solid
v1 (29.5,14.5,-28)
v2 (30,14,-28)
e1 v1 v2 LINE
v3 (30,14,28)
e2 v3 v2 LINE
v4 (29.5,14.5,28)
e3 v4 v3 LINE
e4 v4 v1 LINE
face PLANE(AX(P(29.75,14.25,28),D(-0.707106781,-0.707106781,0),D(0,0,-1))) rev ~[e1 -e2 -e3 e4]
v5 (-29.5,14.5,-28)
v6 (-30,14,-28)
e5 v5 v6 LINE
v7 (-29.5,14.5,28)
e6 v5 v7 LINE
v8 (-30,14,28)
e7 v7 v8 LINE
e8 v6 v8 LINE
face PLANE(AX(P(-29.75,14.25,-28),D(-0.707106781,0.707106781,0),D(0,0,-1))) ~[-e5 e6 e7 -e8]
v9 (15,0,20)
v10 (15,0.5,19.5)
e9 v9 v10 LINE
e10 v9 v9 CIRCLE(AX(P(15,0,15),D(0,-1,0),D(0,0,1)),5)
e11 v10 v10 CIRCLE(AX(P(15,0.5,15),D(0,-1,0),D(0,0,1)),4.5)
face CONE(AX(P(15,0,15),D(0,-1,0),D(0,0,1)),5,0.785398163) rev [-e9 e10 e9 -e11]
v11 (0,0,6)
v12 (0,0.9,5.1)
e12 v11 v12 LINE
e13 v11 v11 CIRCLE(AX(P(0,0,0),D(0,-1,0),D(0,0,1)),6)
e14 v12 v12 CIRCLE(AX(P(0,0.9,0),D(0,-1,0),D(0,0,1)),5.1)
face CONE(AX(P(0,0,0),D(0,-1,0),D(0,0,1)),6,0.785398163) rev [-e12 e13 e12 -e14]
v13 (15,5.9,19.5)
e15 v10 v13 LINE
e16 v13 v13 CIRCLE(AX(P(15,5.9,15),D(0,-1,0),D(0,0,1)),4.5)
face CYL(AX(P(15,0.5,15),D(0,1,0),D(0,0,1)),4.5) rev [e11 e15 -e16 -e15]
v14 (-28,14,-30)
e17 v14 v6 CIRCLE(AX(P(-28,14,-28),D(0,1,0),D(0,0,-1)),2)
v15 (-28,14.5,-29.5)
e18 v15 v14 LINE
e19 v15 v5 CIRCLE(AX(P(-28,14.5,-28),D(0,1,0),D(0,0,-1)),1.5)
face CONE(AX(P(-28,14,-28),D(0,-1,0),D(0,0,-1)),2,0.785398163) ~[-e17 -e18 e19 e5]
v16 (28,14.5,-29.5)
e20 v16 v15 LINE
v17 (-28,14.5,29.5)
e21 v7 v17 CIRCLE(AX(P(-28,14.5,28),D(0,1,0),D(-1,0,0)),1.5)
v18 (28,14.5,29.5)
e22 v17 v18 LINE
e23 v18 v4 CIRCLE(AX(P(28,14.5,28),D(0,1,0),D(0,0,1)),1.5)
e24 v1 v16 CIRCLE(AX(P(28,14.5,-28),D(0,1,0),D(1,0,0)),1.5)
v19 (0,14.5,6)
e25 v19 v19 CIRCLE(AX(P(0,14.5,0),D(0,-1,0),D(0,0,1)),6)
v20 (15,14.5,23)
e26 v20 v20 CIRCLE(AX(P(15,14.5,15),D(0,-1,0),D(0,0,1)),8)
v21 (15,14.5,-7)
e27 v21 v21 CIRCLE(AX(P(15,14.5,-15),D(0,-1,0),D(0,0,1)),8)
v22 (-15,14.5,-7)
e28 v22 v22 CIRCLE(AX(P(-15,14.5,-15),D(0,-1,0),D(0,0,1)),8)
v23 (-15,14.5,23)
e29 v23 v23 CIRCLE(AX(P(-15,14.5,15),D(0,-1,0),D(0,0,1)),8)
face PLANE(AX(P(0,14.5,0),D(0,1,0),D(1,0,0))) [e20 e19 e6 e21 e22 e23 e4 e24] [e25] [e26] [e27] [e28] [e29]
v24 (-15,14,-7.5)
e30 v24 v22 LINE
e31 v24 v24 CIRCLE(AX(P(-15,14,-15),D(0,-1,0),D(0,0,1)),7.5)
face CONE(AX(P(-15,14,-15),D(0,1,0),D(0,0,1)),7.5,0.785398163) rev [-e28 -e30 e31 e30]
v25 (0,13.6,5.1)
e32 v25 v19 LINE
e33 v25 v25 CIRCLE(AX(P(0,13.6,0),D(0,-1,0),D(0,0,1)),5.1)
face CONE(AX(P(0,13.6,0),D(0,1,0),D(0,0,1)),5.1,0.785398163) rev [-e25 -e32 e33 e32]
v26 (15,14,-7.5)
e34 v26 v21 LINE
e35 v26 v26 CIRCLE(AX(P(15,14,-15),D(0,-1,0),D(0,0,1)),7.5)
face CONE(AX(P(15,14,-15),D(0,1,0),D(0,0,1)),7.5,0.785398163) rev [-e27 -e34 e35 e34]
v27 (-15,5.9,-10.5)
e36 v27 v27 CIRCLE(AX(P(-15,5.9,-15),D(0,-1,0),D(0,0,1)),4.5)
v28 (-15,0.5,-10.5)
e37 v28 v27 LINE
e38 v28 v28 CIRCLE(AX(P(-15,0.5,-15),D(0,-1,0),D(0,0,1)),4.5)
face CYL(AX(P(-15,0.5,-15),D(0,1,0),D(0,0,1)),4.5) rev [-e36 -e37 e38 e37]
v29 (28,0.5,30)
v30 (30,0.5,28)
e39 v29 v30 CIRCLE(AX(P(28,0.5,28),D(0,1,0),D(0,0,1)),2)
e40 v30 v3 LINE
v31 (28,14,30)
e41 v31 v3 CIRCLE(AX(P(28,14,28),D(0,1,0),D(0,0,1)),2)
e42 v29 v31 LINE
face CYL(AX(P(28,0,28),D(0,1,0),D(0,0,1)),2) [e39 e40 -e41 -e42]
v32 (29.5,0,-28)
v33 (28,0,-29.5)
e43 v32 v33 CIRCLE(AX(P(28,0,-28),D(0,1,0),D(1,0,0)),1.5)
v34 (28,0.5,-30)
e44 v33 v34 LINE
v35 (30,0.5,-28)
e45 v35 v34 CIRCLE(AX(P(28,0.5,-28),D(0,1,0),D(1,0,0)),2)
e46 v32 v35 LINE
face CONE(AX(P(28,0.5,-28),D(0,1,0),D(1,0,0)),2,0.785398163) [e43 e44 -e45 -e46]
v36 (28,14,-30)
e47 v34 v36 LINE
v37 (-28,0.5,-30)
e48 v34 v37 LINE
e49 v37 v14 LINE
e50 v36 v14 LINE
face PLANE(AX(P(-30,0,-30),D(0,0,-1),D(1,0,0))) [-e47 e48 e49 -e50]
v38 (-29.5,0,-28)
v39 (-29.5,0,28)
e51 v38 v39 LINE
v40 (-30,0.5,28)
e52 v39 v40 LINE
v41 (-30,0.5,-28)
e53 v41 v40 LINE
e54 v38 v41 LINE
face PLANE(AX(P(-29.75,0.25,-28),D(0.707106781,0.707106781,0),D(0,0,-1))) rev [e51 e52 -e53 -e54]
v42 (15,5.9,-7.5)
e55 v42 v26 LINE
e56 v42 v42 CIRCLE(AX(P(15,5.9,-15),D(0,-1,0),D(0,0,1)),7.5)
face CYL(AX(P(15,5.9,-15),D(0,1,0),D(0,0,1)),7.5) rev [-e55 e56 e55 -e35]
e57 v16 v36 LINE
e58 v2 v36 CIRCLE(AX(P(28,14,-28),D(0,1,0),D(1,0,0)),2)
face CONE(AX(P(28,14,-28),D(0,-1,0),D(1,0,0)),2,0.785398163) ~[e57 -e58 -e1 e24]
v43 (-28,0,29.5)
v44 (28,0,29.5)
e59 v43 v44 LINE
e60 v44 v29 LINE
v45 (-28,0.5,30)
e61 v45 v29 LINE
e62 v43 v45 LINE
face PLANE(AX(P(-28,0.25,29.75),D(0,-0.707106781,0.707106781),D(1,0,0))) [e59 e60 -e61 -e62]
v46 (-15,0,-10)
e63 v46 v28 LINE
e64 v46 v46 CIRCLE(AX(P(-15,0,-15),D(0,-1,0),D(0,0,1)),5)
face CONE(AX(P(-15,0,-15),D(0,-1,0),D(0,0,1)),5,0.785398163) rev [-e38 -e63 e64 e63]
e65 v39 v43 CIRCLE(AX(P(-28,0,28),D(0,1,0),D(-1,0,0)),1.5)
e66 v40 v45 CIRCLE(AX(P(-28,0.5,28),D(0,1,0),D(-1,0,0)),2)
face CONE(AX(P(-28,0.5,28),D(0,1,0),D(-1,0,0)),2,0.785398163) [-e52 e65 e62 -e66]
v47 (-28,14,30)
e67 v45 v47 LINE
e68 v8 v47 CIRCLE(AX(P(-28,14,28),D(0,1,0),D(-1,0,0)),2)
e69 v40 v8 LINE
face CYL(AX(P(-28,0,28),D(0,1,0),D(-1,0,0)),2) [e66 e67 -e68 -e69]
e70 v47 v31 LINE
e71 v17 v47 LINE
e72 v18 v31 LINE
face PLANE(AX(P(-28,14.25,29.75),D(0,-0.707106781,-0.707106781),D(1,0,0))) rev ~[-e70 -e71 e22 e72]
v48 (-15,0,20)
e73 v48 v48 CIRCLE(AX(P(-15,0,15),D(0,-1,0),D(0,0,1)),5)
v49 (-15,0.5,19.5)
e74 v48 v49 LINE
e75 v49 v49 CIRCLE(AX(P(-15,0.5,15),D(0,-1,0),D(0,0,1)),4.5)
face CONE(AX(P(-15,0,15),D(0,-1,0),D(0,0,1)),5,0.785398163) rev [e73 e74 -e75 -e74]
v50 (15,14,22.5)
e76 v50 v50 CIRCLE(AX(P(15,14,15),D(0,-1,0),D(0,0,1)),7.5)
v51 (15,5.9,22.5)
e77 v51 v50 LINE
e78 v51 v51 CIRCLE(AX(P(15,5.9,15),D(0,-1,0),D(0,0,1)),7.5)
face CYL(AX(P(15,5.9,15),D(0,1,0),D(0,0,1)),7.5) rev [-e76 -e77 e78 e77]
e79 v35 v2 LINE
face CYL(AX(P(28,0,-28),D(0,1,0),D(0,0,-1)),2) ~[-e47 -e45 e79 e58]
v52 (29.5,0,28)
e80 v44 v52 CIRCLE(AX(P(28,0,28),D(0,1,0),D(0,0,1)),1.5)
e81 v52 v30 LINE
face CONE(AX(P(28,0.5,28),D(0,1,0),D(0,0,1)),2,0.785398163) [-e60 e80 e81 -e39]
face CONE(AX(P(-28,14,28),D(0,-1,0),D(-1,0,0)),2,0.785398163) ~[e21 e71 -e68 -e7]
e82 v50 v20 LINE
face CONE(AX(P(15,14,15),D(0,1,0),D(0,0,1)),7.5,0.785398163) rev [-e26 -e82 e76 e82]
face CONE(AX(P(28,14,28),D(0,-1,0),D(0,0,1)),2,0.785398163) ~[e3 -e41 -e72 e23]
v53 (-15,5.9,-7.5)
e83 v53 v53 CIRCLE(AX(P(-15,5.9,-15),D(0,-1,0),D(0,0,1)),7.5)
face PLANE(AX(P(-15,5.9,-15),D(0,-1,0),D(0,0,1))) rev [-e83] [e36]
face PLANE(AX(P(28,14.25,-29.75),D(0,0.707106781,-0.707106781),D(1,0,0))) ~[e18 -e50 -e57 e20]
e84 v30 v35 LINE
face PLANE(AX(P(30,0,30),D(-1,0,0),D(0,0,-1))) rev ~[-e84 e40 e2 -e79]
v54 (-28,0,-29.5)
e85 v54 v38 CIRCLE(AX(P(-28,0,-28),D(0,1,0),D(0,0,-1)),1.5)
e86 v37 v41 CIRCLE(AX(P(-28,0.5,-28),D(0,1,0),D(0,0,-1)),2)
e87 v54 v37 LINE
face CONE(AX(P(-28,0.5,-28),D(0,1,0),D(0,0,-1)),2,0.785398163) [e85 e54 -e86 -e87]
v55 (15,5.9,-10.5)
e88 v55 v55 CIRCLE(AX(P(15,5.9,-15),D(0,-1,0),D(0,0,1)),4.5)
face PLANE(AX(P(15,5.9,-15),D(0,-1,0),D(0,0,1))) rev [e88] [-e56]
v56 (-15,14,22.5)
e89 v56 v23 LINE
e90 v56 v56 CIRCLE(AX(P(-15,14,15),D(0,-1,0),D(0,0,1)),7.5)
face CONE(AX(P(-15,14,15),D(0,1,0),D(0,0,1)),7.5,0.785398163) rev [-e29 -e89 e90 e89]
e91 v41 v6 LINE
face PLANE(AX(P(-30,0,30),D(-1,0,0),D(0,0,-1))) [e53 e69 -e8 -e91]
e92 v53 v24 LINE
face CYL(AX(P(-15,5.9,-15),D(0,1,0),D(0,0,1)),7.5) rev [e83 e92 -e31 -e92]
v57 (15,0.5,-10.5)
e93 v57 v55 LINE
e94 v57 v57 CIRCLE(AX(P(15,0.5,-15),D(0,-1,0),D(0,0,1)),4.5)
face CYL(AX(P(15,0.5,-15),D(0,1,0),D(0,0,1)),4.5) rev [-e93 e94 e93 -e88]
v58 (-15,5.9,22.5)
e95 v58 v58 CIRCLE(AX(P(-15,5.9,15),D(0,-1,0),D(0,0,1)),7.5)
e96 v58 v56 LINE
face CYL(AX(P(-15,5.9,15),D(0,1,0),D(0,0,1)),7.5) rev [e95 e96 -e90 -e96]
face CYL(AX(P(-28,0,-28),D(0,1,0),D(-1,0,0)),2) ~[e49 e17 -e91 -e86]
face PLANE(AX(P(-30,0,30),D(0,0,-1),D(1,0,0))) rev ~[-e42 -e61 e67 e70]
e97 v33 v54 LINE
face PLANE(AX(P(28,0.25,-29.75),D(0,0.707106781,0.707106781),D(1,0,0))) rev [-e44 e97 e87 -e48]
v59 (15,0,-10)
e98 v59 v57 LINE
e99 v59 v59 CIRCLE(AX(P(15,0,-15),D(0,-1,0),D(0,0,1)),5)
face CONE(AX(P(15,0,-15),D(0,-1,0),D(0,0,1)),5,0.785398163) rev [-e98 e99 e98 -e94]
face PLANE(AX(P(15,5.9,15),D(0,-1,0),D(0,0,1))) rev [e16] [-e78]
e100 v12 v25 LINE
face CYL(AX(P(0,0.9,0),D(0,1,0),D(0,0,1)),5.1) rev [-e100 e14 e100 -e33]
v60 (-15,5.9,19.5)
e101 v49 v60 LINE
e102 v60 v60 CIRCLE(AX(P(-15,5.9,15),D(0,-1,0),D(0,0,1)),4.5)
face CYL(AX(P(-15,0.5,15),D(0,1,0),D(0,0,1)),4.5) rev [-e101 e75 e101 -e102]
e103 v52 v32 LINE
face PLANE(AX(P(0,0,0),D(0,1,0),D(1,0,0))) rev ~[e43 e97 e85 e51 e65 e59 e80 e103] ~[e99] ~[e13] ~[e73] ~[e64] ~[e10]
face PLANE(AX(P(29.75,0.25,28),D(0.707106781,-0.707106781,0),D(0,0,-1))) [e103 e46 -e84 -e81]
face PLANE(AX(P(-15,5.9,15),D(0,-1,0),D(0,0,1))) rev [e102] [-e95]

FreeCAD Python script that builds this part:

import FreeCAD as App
import Part
import Sketcher
Q = App.Units.Quantity


def edges_at(feature, points):
    """Names of the edges that pass closest to the given points."""
    edges = feature.Shape.Edges
    near = lambda p: min(range(len(edges)), key=lambda i: edges[i].distToShape(Part.Vertex(*p))[0])
    return sorted({f"Edge{near(p) + 1}" for p in points})


def add_polygon(sketch, points):
    """Adds a closed chain of lines whose ends are joined by coincident constraints."""
    first, n = sketch.GeometryCount, len(points)
    for a, b in zip(points, points[1:] + points[:1]):
        sketch.addGeometry(Part.LineSegment(App.Vector(*a, 0), App.Vector(*b, 0)), False)
    for i in range(n):
        sketch.addConstraint(Sketcher.Constraint("Coincident", first + i, 2, first + (i + 1) % n, 1))

doc = App.newDocument("Part")
body = doc.addObject("PartDesign::Body", "Body")

# Sketch on XZ plane
sketch1 = doc.addObject("Sketcher::SketchObject", "Sketch")
body.addObject(sketch1)
sketch1.AttachmentSupport = (doc.XZ_Plane, [""])
sketch1.MapMode = "FlatFace"
add_polygon(sketch1, [(-30, -30), (-30, 30), (30, 30), (30, -30)])  # lines 0-3
sketch1.addConstraint([
    Sketcher.Constraint("Vertical", 0),
    Sketcher.Constraint("Horizontal", 1),
    Sketcher.Constraint("Vertical", 2),
    Sketcher.Constraint("Horizontal", 3),
    Sketcher.Constraint("Symmetric", 0, 2, 2, 2, -1, 1),
    Sketcher.Constraint("Equal", 3, 0),
    Sketcher.Constraint("DistanceX", 1, 1, 1, 2, Q("60 mm")),
])
pad1 = doc.addObject("PartDesign::Pad", "Pad")
body.addObject(pad1)
pad1.Profile = sketch1
pad1.Length = 14.5
pad1.Reversed = True

# Sketch on YZ plane
sketch2 = doc.addObject("Sketcher::SketchObject", "Sketch001")
body.addObject(sketch2)
sketch2.AttachmentSupport = (doc.YZ_Plane, [""])
sketch2.MapMode = "FlatFace"
sketch2.AttachmentOffset = App.Placement(App.Vector(0, 0, -15), App.Rotation())
add_polygon(sketch2, [(0, 15), (14.5, 15), (14.5, 23), (14, 22.5), (5.9, 22.5), (5.9, 19.5), (0.5, 19.5), (0, 20)])  # lines 0-7
sketch2.addGeometry(Part.LineSegment(App.Vector(14.5, 15, 0), App.Vector(0, 15, 0)), True)  # axis
sketch2.addConstraint([
    Sketcher.Constraint("Horizontal", 0),
    Sketcher.Constraint("Vertical", 1),
    Sketcher.Constraint("Horizontal", 3),
    Sketcher.Constraint("Vertical", 4),
    Sketcher.Constraint("Horizontal", 5),
    Sketcher.Constraint("Vertical", 7),
    Sketcher.Constraint("Horizontal", 8),
    Sketcher.Constraint("Coincident", 8, 1, 0, 2),
    Sketcher.Constraint("PointOnObject", 6, 2, -2),
    Sketcher.Constraint("PointOnObject", 8, 2, -2),
    Sketcher.Constraint("Perpendicular", 2, 6),
    Sketcher.Constraint("Equal", 2, 6),
    Sketcher.Constraint("DistanceY", 1, 1, 1, 2, Q("8 mm")),
    Sketcher.Constraint("DistanceY", 4, 2, 4, 1, Q("3 mm")),
    Sketcher.Constraint("DistanceY", 7, 2, 7, 1, Q("5 mm")),
    Sketcher.Constraint("DistanceX", 0, 1, 0, 2, Q("14.5 mm")),
    Sketcher.Constraint("DistanceX", 3, 2, 3, 1, Q("8.1 mm")),
    Sketcher.Constraint("DistanceX", 5, 2, 5, 1, Q("5.4 mm")),
    Sketcher.Constraint("DistanceY", -1, 1, 0, 2, Q("15 mm")),
])
groove = doc.addObject("PartDesign::Groove", "Groove")
body.addObject(groove)
groove.Profile = sketch2
groove.ReferenceAxis = (sketch2, ["Axis0"])
groove.Angle = 360
doc.recompute()

linearpattern = doc.addObject("PartDesign::LinearPattern", "LinearPattern")
body.addObject(linearpattern)
linearpattern.Originals = [groove]
linearpattern.Direction = (doc.X_Axis, [""])
linearpattern.Mode = "offset"
linearpattern.Offset = 30
linearpattern.Occurrences = 2
body.Tip = linearpattern
doc.recompute()

datumline = doc.addObject("PartDesign::Line", "DatumLine")
body.addObject(datumline)
datumline.Placement = App.Placement(App.Vector(0, 0, 0), App.Rotation(App.Vector(0, 0, 1), App.Vector(0.707106781, 0, -0.707106781)))
linearpattern2 = doc.addObject("PartDesign::LinearPattern", "LinearPattern001")
body.addObject(linearpattern2)
linearpattern2.Originals = [groove]
linearpattern2.Direction = (datumline, [""])
linearpattern2.Mode = "offset"
linearpattern2.Offset = 42.426407
linearpattern2.Occurrences = 2
body.Tip = linearpattern2
doc.recompute()

linearpattern3 = doc.addObject("PartDesign::LinearPattern", "LinearPattern002")
body.addObject(linearpattern3)
linearpattern3.Originals = [groove]
linearpattern3.Direction = (doc.Z_Axis, [""])
linearpattern3.Mode = "offset"
linearpattern3.Offset = 30
linearpattern3.Occurrences = 2
linearpattern3.Reversed = True
body.Tip = linearpattern3

# Sketch on YZ plane
sketch3 = doc.addObject("Sketcher::SketchObject", "Sketch002")
body.addObject(sketch3)
sketch3.AttachmentSupport = (doc.YZ_Plane, [""])
sketch3.MapMode = "FlatFace"
add_polygon(sketch3, [(0, 0), (14.5, 0), (14.5, 6), (13.6, 5.1), (0.9, 5.1), (0, 6)])  # lines 0-5
sketch3.addConstraint([
    Sketcher.Constraint("Horizontal", 0),
    Sketcher.Constraint("Vertical", 1),
    Sketcher.Constraint("Horizontal", 3),
    Sketcher.Constraint("Vertical", 5),
    Sketcher.Constraint("Coincident", 5, 2, -1, 1),
    Sketcher.Constraint("Perpendicular", 2, 4),
    Sketcher.Constraint("Horizontal", 1, 2, 4, 2),
    Sketcher.Constraint("Equal", 2, 4),
    Sketcher.Constraint("DistanceY", 1, 1, 1, 2, Q("6 mm")),
    Sketcher.Constraint("DistanceX", 0, 1, 0, 2, Q("14.5 mm")),
    Sketcher.Constraint("DistanceX", 3, 2, 3, 1, Q("12.7 mm")),
])
groove2 = doc.addObject("PartDesign::Groove", "Groove001")
body.addObject(groove2)
groove2.Profile = sketch3
groove2.ReferenceAxis = (sketch3, ["H_Axis"])
groove2.Angle = 360
doc.recompute()

fillet = doc.addObject("PartDesign::Fillet", "Fillet")
body.addObject(fillet)
fillet.Base = (groove2, edges_at(groove2, [
    (-30, 7.25, -30),
    (30, 7.25, -30),
    (30, 7.25, 30),
    (-30, 7.25, 30),
]))
fillet.Radius = 2
doc.recompute()

chamfer = doc.addObject("PartDesign::Chamfer", "Chamfer")
body.addObject(chamfer)
chamfer.Base = (fillet, edges_at(fillet, [
    (0, 0, 30),
    (0, 14.5, 30),
    (-30, 0, 0),
    (0, 0, -30),
    (30, 0, 0),
    (-29.414, 0, -29.414),
    (29.414, 0, -29.414),
    (29.414, 0, 29.414),
    (-29.414, 0, 29.414),
    (-30, 14.5, 0),
    (30, 14.5, 0),
    (0, 14.5, -30),
    (-29.414, 14.5, -29.414),
    (29.414, 14.5, -29.414),
    (29.414, 14.5, 29.414),
    (-29.414, 14.5, 29.414),
]))
chamfer.Size = 0.5

doc.recompute()
